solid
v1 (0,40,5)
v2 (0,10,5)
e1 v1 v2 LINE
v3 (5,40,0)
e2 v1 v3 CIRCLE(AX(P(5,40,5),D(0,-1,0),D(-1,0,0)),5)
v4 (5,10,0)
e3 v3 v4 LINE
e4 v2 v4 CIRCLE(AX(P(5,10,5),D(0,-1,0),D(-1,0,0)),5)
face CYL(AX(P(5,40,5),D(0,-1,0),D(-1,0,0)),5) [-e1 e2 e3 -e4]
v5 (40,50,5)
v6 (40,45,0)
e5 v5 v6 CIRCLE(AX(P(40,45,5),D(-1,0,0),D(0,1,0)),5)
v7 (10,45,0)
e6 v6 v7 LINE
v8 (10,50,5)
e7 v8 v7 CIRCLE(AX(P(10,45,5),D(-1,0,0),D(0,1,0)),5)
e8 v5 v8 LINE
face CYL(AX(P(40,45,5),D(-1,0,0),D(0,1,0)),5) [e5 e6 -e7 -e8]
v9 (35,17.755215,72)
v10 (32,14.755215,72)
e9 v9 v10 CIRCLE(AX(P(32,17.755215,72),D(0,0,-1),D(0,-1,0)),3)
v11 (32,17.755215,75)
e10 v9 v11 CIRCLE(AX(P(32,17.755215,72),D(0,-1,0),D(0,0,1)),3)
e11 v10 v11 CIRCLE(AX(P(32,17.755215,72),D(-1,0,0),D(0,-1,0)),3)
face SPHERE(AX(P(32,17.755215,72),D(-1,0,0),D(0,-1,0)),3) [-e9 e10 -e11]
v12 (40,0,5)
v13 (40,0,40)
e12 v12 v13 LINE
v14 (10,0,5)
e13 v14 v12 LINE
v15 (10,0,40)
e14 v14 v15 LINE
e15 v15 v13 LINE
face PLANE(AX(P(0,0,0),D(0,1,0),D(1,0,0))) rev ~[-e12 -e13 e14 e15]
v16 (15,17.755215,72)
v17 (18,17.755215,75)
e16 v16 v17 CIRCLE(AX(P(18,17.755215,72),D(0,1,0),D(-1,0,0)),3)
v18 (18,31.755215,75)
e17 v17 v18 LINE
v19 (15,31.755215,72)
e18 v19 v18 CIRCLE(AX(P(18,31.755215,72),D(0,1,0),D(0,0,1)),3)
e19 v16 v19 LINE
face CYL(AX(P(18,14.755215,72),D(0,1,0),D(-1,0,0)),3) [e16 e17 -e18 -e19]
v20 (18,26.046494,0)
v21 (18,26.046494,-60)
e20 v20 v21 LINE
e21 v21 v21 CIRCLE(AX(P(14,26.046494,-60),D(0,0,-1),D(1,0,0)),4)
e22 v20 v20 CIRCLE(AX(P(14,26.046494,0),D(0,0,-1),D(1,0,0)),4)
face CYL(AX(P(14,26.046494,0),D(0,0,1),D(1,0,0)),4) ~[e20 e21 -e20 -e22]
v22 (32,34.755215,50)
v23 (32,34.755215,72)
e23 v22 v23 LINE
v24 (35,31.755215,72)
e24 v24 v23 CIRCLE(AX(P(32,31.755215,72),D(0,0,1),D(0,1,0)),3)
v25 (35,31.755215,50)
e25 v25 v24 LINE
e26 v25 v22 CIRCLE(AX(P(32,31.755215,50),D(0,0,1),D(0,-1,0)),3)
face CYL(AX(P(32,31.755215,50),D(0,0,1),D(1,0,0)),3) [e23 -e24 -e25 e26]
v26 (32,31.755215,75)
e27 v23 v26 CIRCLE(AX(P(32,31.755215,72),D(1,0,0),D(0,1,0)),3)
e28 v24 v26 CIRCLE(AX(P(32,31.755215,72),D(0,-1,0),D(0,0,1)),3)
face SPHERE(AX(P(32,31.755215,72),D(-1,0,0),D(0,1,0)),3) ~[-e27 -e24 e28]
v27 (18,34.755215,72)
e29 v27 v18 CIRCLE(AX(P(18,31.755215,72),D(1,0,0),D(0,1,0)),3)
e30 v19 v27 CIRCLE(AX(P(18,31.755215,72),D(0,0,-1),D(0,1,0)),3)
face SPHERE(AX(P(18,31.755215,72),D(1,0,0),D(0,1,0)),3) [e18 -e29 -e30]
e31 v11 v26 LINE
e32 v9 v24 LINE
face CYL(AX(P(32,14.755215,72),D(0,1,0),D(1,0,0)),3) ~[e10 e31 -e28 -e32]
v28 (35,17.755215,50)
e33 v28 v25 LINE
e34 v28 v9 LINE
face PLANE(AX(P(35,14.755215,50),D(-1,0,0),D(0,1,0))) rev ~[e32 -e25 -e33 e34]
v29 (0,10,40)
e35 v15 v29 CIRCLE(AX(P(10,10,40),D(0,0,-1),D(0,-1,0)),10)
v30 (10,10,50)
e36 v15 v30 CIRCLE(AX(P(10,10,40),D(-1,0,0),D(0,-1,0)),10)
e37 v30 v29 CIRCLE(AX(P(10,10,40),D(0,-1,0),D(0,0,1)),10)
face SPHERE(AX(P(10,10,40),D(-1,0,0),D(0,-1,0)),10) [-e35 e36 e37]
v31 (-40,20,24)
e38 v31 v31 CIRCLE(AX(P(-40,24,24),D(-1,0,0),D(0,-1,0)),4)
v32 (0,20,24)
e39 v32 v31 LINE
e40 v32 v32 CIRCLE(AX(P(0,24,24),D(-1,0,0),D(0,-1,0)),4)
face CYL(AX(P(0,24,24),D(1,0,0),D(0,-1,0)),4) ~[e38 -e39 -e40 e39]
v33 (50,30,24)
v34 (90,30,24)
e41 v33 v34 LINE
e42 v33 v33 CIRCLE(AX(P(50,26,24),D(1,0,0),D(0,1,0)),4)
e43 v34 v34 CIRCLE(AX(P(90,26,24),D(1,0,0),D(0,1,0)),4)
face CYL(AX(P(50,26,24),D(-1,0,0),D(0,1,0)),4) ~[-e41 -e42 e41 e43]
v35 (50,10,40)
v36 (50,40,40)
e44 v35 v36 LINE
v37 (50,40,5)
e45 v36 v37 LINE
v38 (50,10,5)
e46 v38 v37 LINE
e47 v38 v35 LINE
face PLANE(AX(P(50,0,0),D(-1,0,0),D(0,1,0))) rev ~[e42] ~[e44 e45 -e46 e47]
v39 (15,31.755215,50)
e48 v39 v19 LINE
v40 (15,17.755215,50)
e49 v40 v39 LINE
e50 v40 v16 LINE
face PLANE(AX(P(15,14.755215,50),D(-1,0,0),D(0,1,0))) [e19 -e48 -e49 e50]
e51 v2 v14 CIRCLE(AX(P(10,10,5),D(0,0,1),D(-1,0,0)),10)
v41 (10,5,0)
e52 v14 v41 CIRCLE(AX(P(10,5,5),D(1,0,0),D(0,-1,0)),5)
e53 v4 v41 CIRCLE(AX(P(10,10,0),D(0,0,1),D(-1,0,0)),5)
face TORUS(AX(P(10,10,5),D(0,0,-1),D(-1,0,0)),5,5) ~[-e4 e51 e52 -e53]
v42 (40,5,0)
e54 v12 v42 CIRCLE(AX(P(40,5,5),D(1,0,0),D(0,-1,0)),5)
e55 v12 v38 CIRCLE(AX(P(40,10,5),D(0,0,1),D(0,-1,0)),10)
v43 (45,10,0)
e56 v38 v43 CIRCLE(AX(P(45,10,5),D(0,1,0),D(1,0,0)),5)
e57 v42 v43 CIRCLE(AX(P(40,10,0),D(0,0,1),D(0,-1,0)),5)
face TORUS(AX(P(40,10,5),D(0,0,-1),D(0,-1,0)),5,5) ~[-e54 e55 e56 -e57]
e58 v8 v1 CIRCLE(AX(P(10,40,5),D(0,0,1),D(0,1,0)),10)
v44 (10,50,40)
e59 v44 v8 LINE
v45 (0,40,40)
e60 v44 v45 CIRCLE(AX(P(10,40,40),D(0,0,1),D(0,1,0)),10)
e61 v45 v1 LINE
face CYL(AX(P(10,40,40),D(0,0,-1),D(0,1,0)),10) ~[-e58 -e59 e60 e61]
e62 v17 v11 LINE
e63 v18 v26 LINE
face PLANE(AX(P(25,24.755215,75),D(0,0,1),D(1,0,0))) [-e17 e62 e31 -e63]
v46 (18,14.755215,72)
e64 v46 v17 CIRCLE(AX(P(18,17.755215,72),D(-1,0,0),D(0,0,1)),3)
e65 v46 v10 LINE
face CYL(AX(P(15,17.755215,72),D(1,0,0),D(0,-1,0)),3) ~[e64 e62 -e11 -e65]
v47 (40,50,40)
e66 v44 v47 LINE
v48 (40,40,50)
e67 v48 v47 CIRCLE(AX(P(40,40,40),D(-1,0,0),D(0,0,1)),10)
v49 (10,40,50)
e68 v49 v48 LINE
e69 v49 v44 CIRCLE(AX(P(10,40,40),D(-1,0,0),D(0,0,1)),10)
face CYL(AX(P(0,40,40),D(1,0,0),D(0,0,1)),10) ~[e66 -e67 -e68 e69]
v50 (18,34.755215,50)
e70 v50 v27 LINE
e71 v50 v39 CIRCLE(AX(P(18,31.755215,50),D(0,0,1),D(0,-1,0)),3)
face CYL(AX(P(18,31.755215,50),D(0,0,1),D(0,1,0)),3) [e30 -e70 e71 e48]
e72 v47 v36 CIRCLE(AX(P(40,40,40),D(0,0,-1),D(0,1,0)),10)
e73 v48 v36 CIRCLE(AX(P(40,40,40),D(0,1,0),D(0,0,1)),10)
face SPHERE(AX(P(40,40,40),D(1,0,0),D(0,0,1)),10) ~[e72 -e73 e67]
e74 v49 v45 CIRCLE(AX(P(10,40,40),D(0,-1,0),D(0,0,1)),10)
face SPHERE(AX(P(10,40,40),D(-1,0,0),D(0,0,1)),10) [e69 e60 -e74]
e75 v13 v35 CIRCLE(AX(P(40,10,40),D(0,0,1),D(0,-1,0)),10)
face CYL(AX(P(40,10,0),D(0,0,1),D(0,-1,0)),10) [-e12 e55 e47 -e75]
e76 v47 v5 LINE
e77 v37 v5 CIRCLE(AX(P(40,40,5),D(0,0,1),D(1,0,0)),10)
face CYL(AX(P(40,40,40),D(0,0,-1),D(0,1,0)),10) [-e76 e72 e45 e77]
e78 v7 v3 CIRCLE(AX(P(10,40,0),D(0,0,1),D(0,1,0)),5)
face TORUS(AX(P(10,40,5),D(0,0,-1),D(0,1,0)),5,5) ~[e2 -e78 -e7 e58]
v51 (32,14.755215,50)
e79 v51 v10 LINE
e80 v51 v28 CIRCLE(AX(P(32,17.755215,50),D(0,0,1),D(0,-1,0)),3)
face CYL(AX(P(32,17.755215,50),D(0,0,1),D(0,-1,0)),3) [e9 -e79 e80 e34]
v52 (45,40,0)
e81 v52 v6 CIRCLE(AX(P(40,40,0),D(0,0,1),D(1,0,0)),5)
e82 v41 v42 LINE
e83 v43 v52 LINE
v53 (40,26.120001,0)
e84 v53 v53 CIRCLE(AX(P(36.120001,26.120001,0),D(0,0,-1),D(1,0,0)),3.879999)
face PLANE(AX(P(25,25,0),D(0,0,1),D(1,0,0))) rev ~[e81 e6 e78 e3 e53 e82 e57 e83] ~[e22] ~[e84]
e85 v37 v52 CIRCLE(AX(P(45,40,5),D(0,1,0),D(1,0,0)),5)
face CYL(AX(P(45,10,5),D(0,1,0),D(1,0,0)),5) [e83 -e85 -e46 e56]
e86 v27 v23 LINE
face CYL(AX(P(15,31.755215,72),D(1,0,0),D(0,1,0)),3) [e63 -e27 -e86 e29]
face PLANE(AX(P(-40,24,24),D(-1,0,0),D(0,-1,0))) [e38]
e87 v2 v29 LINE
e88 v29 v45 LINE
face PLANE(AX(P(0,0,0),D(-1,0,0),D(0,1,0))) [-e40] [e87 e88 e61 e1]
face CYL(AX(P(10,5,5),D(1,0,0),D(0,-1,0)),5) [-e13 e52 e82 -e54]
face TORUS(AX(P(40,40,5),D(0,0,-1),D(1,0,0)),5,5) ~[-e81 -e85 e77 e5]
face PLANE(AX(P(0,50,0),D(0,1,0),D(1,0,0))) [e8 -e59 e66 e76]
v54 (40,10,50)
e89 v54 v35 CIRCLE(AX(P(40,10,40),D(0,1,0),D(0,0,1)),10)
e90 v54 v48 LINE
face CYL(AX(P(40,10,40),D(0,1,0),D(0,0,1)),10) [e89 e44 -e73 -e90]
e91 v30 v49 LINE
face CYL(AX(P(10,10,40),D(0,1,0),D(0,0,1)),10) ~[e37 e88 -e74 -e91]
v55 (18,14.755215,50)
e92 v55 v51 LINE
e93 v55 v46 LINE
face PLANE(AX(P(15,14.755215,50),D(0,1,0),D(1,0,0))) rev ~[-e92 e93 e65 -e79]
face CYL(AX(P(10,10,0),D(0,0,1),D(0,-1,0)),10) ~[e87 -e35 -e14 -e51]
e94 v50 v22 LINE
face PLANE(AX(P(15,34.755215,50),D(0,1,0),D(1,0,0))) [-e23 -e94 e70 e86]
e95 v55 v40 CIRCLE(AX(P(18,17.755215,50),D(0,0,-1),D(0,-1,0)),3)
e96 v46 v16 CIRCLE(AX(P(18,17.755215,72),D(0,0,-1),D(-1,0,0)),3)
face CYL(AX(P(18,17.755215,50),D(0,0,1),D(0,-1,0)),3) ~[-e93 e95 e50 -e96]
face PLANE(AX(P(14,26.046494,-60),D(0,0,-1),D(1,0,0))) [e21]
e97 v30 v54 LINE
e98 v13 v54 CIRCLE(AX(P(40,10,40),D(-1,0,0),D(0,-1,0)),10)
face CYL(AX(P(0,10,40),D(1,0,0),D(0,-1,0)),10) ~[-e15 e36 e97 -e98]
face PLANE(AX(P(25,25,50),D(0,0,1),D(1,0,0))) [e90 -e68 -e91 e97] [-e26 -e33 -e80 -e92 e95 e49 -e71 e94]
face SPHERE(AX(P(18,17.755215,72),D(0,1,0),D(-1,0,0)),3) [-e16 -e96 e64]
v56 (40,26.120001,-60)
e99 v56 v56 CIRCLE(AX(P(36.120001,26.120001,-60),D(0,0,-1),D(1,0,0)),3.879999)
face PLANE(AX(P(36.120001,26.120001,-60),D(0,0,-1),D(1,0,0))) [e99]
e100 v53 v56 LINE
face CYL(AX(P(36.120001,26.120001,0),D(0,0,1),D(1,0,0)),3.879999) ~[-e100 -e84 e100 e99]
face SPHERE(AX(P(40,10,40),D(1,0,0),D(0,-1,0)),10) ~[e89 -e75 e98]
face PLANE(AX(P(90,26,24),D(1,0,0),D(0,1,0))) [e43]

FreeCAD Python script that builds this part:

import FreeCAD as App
import Part
import Sketcher
from FreeCAD import Vector
Q = App.Units.Quantity


def edges_at(feature, points):
    """Names of the edges that pass closest to the given points."""
    edges = feature.Shape.Edges
    near = lambda p: min(range(len(edges)), key=lambda i: edges[i].distToShape(Part.Vertex(*p))[0])
    return sorted({f"Edge{near(p) + 1}" for p in points})

doc = App.newDocument("Part")
body = doc.addObject("PartDesign::Body", "Body")

# Sketch on XY plane
sketch1 = body.newObject("Sketcher::SketchObject", "Sketch")
sketch1.AttachmentSupport = (doc.getObject("XY_Plane"), [""])
sketch1.MapMode = "FlatFace"
sketch1.addGeometry([
    Part.LineSegment(Vector(0, 50, 0), Vector(0, 0, 0)),
    Part.LineSegment(Vector(0, 0, 0), Vector(50, 0, 0)),
    Part.LineSegment(Vector(50, 0, 0), Vector(50, 50, 0)),
    Part.LineSegment(Vector(50, 50, 0), Vector(0, 50, 0)),
], False)
sketch1.addConstraint([
    Sketcher.Constraint("Coincident", 0, 2, 1, 1),
    Sketcher.Constraint("Coincident", 1, 2, 2, 1),
    Sketcher.Constraint("Coincident", 2, 2, 3, 1),
    Sketcher.Constraint("Coincident", 3, 2, 0, 1),
    Sketcher.Constraint("Vertical", 0),
    Sketcher.Constraint("Horizontal", 1),
    Sketcher.Constraint("Vertical", 2),
    Sketcher.Constraint("Horizontal", 3),
    Sketcher.Constraint("Coincident", 0, 2, -1, 1),
    Sketcher.Constraint("Equal", 3, 0),
    Sketcher.Constraint("DistanceX", 1, 1, 1, 2, Q("50 mm")),
])
pad1 = body.newObject("PartDesign::Pad", "Pad")
pad1.Profile = sketch1
pad1.Length = 50

# Sketch on XY plane
sketch2 = body.newObject("Sketcher::SketchObject", "Sketch001")
sketch2.AttachmentSupport = (doc.getObject("XY_Plane"), [""])
sketch2.MapMode = "FlatFace"
sketch2.AttachmentOffset = App.Placement(Vector(0, 0, 50), App.Rotation())
sketch2.addGeometry([
    Part.LineSegment(Vector(15, 34.755215, 0), Vector(15, 14.755215, 0)),
    Part.LineSegment(Vector(15, 14.755215, 0), Vector(35, 14.755215, 0)),
    Part.LineSegment(Vector(35, 14.755215, 0), Vector(35, 34.755215, 0)),
    Part.LineSegment(Vector(35, 34.755215, 0), Vector(15, 34.755215, 0)),
], False)
sketch2.addConstraint([
    Sketcher.Constraint("Coincident", 0, 2, 1, 1),
    Sketcher.Constraint("Coincident", 1, 2, 2, 1),
    Sketcher.Constraint("Coincident", 2, 2, 3, 1),
    Sketcher.Constraint("Coincident", 3, 2, 0, 1),
    Sketcher.Constraint("Vertical", 0),
    Sketcher.Constraint("Horizontal", 1),
    Sketcher.Constraint("Vertical", 2),
    Sketcher.Constraint("Horizontal", 3),
    Sketcher.Constraint("Equal", 3, 0),
    Sketcher.Constraint("DistanceX", 1, 1, 1, 2, Q("20 mm")),
    Sketcher.Constraint("DistanceX", -1, 1, 0, 2, Q("15 mm")),
    Sketcher.Constraint("DistanceY", -1, 1, 0, 2, Q("14.755215 mm")),
])
pad2 = body.newObject("PartDesign::Pad", "Pad001")
pad2.Profile = sketch2
pad2.Length = 25

# Sketch on YZ plane
sketch3 = body.newObject("Sketcher::SketchObject", "Sketch002")
sketch3.AttachmentSupport = (doc.getObject("YZ_Plane"), [""])
sketch3.MapMode = "FlatFace"
sketch3.AttachmentOffset = App.Placement(Vector(0, 0, 50), App.Rotation())
sketch3.addGeometry(Part.Circle(Vector(26, 24, 0), Vector(0, 0, 1), 4), False)
sketch3.addConstraint([
    Sketcher.Constraint("Diameter", 0, Q("8 mm")),
    Sketcher.Constraint("DistanceX", -1, 1, 0, 3, Q("26 mm")),
    Sketcher.Constraint("DistanceY", -1, 1, 0, 3, Q("24 mm")),
])
pad3 = body.newObject("PartDesign::Pad", "Pad002")
pad3.Profile = sketch3
pad3.Length = 40

# Sketch on YZ plane
sketch4 = body.newObject("Sketcher::SketchObject", "Sketch003")
sketch4.AttachmentSupport = (doc.getObject("YZ_Plane"), [""])
sketch4.MapMode = "FlatFace"
sketch4.addGeometry(Part.Circle(Vector(24, 24, 0), Vector(0, 0, 1), 4), False)
sketch4.addConstraint([
    Sketcher.Constraint("Diameter", 0, Q("8 mm")),
    Sketcher.Constraint("DistanceX", -1, 1, 0, 3, Q("24 mm")),
    Sketcher.Constraint("DistanceY", -1, 1, 0, 3, Q("24 mm")),
])
pad4 = body.newObject("PartDesign::Pad", "Pad003")
pad4.Profile = sketch4
pad4.Length = 40
pad4.Reversed = True

# Sketch on XY plane
sketch5 = body.newObject("Sketcher::SketchObject", "Sketch004")
sketch5.AttachmentSupport = (doc.getObject("XY_Plane"), [""])
sketch5.MapMode = "FlatFace"
sketch5.addGeometry(Part.Circle(Vector(14, 26.046494, 0), Vector(0, 0, 1), 4), False)
sketch5.addConstraint([
    Sketcher.Constraint("Diameter", 0, Q("8 mm")),
    Sketcher.Constraint("DistanceX", -1, 1, 0, 3, Q("14 mm")),
    Sketcher.Constraint("DistanceY", -1, 1, 0, 3, Q("26.046494 mm")),
])
pad5 = body.newObject("PartDesign::Pad", "Pad004")
pad5.Profile = sketch5
pad5.Length = 60
pad5.Reversed = True

# Sketch on XY plane
sketch6 = body.newObject("Sketcher::SketchObject", "Sketch005")
sketch6.AttachmentSupport = (doc.getObject("XY_Plane"), [""])
sketch6.MapMode = "FlatFace"
sketch6.addGeometry(Part.Circle(Vector(36.120001, 26.120001, 0), Vector(0, 0, 1), 3.879999), False)
sketch6.addConstraint([
    Sketcher.Constraint("Diameter", 0, Q("7.759998 mm")),
    Sketcher.Constraint("DistanceX", -1, 1, 0, 3, Q("36.120001 mm")),
    Sketcher.Constraint("DistanceY", -1, 1, 0, 3, Q("26.120001 mm")),
])
pad6 = body.newObject("PartDesign::Pad", "Pad005")
pad6.Profile = sketch6
pad6.Length = 60
pad6.Reversed = True
doc.recompute()

fillet = body.newObject("PartDesign::Fillet", "Fillet")
fillet.Base = (pad6, edges_at(pad6, [(25, 0, 50)]))
fillet.Radius = 10
doc.recompute()

fillet2 = body.newObject("PartDesign::Fillet", "Fillet001")
fillet2.Base = (fillet, edges_at(fillet, [(25, 50, 50)]))
fillet2.Radius = 10
doc.recompute()

fillet3 = body.newObject("PartDesign::Fillet", "Fillet002")
fillet3.Base = (fillet2, edges_at(fillet2, [(50, 25, 50)]))
fillet3.Radius = 10
doc.recompute()

fillet4 = body.newObject("PartDesign::Fillet", "Fillet003")
fillet4.Base = (fillet3, edges_at(fillet3, [(0, 25, 50)]))
fillet4.Radius = 10
doc.recompute()

fillet5 = body.newObject("PartDesign::Fillet", "Fillet004")
fillet5.Base = (fillet4, edges_at(fillet4, [
    (25, 34.755, 75),
    (15, 34.755, 62.5),
    (35, 34.755, 62.5),
    (15, 24.755, 75),
    (15, 14.755, 62.5),
    (25, 14.755, 75),
    (35, 14.755, 62.5),
    (35, 24.755, 75),
]))
fillet5.Radius = 3
doc.recompute()

fillet6 = body.newObject("PartDesign::Fillet", "Fillet005")
fillet6.Base = (fillet5, edges_at(fillet5, [(25, 0, 0)]))
fillet6.Radius = 5

doc.recompute()
